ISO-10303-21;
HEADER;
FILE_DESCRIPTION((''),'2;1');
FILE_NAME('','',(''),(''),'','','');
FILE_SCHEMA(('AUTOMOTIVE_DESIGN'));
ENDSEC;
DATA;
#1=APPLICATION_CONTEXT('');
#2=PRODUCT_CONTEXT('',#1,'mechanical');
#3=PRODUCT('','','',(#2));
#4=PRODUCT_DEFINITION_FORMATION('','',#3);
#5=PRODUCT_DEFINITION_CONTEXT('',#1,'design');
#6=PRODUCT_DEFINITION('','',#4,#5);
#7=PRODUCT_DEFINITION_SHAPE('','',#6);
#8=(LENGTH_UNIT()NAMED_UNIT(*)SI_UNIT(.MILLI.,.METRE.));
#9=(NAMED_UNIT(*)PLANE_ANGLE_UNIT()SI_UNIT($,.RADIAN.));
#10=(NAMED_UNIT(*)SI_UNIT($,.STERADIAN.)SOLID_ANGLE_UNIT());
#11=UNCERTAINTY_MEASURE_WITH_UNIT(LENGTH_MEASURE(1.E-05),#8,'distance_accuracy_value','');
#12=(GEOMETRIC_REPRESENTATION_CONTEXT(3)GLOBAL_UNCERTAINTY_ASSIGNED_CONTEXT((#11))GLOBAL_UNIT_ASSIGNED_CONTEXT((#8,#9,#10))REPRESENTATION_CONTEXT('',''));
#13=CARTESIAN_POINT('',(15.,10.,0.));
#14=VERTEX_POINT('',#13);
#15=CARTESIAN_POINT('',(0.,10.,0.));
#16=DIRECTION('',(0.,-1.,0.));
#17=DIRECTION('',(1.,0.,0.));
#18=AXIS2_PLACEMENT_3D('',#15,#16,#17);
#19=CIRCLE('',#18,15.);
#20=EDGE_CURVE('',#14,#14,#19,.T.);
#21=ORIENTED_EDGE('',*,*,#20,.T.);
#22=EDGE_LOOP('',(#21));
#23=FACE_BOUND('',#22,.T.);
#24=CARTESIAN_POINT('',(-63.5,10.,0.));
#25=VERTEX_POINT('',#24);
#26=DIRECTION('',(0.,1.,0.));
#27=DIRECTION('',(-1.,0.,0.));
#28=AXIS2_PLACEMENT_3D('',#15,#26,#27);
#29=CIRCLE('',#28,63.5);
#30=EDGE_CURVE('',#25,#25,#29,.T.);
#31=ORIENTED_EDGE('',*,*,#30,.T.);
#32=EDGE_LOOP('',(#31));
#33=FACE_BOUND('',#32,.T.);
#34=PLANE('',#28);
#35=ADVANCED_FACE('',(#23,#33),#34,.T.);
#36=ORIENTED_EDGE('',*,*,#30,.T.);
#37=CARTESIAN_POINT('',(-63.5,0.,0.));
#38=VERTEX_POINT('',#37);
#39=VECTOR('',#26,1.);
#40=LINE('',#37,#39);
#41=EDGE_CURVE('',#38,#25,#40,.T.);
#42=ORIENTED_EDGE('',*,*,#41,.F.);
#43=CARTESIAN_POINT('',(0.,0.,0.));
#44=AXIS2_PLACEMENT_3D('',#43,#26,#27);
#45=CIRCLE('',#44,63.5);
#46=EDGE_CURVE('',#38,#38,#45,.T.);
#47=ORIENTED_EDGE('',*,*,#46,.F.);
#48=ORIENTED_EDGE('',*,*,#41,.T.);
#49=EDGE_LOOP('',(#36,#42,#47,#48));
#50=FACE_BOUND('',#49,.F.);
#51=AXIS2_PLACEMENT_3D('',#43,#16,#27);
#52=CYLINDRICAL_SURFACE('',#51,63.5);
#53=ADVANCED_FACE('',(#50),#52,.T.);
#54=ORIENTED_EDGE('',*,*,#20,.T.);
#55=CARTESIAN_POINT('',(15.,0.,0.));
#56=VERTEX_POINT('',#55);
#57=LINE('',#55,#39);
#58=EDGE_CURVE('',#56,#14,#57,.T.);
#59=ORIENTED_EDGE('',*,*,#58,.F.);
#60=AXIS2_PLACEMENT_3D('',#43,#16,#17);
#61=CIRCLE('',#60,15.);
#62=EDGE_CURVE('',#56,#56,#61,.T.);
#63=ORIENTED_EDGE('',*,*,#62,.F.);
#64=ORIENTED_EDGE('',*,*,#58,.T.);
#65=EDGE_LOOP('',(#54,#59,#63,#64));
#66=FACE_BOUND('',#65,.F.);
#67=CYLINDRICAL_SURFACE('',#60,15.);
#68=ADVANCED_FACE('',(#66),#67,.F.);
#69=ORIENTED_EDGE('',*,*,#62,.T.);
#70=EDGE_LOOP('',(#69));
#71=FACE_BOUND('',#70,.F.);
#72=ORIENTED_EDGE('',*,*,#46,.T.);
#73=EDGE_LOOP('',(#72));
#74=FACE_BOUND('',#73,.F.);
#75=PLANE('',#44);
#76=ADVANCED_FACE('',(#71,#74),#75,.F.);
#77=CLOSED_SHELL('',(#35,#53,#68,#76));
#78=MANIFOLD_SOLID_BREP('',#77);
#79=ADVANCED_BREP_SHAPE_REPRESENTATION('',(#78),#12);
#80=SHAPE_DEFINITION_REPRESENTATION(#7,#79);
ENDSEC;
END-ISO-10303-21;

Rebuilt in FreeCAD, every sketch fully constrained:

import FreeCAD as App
import Part
import Sketcher

V = App.Vector

doc = App.newDocument("Part")
params = doc.addObject("Spreadsheet::Sheet", "Params")
for row, (alias, value) in enumerate([
    ("sketch1_diameter", "127 mm"),
    ("pad1_length", "10 mm"),
    ("sketch2_diameter", "30 mm"),
], start=1):
    params.set(f"A{row}", alias)
    params.set(f"B{row}", "=" + value)
    params.setAlias(f"B{row}", alias)

body = doc.addObject("PartDesign::Body", "Body")

# Sketch on XZ plane
sketch1 = body.newObject("Sketcher::SketchObject", "Sketch")
sketch1.AttachmentSupport = (doc.getObject("XZ_Plane"), [""])
sketch1.MapMode = "FlatFace"
sketch1.addGeometry(Part.Circle(V(0, 0, 0), V(0, 0, 1), 63.5), False)
sketch1.addConstraint(Sketcher.Constraint("Coincident", 0, 3, -1, 1))
sketch1.addConstraint(Sketcher.Constraint("Diameter", 0, 127.0))
sketch1.setExpression("Constraints[1]", "Params.sketch1_diameter")
pad1 = body.newObject("PartDesign::Pad", "Pad")
pad1.Profile = sketch1
pad1.setExpression("Length", "Params.pad1_length")
pad1.Reversed = True

# Sketch on XZ plane
sketch2 = body.newObject("Sketcher::SketchObject", "Sketch001")
sketch2.AttachmentSupport = (doc.getObject("XZ_Plane"), [""])
sketch2.MapMode = "FlatFace"
sketch2.addGeometry(Part.Circle(V(0, 0, 0), V(0, 0, 1), 15), False)
sketch2.addConstraint(Sketcher.Constraint("Coincident", 0, 3, -1, 1))
sketch2.addConstraint(Sketcher.Constraint("Diameter", 0, 30.0))
sketch2.setExpression("Constraints[1]", "Params.sketch2_diameter")
pocket1 = body.newObject("PartDesign::Pocket", "Pocket")
pocket1.Profile = sketch2
pocket1.Type = "ThroughAll"

doc.recompute()
